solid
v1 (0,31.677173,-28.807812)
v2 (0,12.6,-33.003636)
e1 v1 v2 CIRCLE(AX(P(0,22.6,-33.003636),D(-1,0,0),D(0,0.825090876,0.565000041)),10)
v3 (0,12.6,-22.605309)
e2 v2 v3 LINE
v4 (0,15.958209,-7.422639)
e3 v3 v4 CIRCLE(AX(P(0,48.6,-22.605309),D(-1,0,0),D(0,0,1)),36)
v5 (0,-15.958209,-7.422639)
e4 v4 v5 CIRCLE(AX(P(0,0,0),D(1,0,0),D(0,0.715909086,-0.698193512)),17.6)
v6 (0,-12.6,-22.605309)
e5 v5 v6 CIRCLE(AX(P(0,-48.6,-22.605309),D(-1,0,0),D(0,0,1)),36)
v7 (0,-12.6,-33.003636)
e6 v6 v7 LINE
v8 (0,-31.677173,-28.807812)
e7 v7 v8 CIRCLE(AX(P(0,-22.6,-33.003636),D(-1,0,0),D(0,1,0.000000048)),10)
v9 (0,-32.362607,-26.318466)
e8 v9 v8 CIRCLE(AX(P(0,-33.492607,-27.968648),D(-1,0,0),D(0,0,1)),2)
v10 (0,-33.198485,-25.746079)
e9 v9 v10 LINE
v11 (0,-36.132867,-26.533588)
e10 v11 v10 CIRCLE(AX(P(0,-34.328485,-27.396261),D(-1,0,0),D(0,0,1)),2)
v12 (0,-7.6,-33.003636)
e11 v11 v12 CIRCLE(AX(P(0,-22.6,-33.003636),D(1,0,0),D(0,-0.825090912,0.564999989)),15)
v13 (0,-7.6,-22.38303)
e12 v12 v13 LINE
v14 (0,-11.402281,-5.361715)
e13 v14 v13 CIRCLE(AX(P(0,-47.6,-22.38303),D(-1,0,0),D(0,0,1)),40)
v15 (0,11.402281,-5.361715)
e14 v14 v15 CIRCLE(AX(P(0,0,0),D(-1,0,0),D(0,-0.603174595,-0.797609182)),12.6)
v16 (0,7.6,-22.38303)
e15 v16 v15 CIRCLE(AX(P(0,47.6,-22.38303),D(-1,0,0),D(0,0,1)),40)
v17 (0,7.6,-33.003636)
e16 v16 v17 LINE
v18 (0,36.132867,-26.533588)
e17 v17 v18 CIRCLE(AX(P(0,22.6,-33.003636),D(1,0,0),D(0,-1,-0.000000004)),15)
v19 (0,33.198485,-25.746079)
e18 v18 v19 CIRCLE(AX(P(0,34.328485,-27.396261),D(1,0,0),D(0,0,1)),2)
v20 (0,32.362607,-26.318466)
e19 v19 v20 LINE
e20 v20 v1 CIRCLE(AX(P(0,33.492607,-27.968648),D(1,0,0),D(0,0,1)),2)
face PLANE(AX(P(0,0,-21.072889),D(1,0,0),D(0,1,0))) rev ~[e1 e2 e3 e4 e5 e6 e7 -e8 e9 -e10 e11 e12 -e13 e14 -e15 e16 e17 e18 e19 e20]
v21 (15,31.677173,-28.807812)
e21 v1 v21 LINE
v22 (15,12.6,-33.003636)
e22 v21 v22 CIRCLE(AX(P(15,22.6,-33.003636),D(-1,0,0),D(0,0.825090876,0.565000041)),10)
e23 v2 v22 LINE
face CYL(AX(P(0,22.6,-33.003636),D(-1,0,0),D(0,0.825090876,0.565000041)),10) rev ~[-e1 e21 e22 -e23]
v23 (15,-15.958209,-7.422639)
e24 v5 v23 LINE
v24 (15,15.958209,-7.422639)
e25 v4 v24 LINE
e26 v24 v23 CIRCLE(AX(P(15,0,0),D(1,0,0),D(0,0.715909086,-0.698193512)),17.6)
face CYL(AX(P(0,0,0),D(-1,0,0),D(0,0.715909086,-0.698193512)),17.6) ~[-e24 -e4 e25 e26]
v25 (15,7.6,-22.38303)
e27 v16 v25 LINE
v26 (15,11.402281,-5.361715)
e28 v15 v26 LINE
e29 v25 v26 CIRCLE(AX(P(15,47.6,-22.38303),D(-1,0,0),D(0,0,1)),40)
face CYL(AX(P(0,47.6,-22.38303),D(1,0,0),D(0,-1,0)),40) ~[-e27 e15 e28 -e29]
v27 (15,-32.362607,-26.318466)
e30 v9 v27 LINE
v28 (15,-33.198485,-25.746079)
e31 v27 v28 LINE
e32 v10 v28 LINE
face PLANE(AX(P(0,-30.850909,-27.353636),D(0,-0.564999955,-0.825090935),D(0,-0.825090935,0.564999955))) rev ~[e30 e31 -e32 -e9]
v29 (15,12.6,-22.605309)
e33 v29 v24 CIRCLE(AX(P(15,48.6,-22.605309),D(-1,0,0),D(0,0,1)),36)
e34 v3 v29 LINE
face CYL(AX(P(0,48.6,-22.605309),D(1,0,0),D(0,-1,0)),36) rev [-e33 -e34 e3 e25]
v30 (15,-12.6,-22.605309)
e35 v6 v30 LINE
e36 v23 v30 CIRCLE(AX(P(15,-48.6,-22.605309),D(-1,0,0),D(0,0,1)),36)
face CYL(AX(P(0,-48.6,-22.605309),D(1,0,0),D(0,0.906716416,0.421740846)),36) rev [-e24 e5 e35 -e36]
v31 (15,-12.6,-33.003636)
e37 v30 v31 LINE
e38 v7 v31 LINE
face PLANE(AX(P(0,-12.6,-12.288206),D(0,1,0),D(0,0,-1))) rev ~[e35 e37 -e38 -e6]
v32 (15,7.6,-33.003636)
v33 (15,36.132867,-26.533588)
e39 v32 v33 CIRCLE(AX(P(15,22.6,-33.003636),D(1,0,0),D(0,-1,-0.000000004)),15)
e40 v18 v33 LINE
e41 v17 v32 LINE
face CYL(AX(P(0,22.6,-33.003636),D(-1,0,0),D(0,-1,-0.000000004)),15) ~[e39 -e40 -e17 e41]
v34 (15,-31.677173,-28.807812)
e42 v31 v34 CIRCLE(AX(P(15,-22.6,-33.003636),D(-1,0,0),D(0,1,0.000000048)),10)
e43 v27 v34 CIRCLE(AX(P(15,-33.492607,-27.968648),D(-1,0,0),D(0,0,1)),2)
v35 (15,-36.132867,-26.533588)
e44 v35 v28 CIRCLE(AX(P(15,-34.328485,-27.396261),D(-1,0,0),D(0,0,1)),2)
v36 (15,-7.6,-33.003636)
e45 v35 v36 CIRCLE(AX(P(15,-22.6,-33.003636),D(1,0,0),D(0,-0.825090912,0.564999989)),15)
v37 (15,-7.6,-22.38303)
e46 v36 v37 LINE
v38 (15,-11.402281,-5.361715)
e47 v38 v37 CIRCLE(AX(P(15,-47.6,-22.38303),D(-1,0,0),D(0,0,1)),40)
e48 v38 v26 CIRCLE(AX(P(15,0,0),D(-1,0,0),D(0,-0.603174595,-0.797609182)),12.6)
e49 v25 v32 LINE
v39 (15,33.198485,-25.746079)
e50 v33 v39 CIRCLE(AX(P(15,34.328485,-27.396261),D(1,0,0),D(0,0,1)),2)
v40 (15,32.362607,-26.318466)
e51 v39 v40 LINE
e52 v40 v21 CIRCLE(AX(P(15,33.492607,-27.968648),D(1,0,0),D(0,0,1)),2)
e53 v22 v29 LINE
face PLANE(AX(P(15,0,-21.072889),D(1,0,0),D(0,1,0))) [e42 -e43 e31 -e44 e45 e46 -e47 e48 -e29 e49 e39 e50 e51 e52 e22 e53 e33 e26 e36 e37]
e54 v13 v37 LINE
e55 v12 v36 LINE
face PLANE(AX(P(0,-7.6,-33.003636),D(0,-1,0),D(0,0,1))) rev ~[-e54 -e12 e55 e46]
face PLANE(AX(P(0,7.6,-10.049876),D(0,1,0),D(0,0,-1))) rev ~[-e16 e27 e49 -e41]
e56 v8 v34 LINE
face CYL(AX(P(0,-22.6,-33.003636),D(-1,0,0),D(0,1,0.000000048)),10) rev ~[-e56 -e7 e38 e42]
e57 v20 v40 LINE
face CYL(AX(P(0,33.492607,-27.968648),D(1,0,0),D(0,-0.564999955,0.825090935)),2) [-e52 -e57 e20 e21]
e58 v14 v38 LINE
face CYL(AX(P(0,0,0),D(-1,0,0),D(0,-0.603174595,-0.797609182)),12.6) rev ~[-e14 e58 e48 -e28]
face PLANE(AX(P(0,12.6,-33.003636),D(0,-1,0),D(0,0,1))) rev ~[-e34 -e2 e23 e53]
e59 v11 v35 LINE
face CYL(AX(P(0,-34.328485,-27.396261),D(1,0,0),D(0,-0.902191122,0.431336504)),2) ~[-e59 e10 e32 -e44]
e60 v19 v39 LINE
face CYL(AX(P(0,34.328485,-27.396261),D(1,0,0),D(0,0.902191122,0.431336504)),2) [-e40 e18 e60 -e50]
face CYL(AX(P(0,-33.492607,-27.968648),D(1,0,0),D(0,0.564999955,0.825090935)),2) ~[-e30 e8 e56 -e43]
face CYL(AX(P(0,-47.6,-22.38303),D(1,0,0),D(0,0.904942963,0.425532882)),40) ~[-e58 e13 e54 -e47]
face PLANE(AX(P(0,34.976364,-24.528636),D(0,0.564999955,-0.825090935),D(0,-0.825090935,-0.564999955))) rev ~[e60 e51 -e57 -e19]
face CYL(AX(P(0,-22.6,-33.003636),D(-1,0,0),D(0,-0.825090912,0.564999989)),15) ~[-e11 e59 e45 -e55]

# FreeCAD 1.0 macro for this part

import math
import FreeCAD as App
import Part
import Sketcher

V = App.Vector


def edges_at(feature, points):
    """Names of the edges that pass closest to the given points."""
    edges = feature.Shape.Edges
    near = lambda p: min(range(len(edges)), key=lambda i: edges[i].distToShape(Part.Vertex(*p))[0])
    return sorted({f"Edge{near(p) + 1}" for p in points})

doc = App.newDocument("Part")
body = doc.addObject("PartDesign::Body", "Body")

# Sketch on YZ plane
sketch1 = doc.addObject("Sketcher::SketchObject", "Sketch")
body.addObject(sketch1)
sketch1.AttachmentSupport = (doc.YZ_Plane, [""])
sketch1.MapMode = "FlatFace"
sketch1.addGeometry([
    Part.ArcOfCircle(Part.Circle(V(0, 0, 0), V(0, 0, 1), 12.6), math.radians(-52.902399), math.radians(232.902399)),  # 0
    Part.LineSegment(V(7.6, -10.049876, 0), V(7.6, -33.003636, 0)),  # 1
    Part.ArcOfCircle(Part.Circle(V(22.6, -33.003636, 0), V(0, 0, 1), 15), math.radians(-180), math.radians(34.402291)),  # 2
    Part.LineSegment(V(34.976364, -24.528636, 0), V(30.850909, -27.353636, 0)),  # 3
    Part.ArcOfCircle(Part.Circle(V(22.6, -33.003636, 0), V(0, 0, 1), 10), math.radians(179.999997), math.radians(394.402294)),  # 4
    Part.LineSegment(V(12.6, -33.003636, 0), V(12.6, -12.288206, 0)),  # 5
    Part.ArcOfCircle(Part.Circle(V(0, 0, 0), V(0, 0, 1), 17.6), math.radians(-44.282248), math.radians(224.282248)),  # 6
    Part.LineSegment(V(-12.6, -12.288206, 0), V(-12.6, -33.003636, 0)),  # 7
    Part.ArcOfCircle(Part.Circle(V(-22.6, -33.003636, 0), V(0, 0, 1), 10), math.radians(145.597706), math.radians(360.000003)),  # 8
    Part.LineSegment(V(-30.850909, -27.353636, 0), V(-34.976364, -24.528636, 0)),  # 9
    Part.ArcOfCircle(Part.Circle(V(-22.6, -33.003636, 0), V(0, 0, 1), 15), math.radians(145.597709), math.radians(360)),  # 10
    Part.LineSegment(V(-7.6, -33.003636, 0), V(-7.6, -10.049876, 0)),  # 11
], False)
sketch1.addConstraint([
    Sketcher.Constraint("Coincident", 0, 1, 1, 1),
    Sketcher.Constraint("Tangent", 1, 2, 2, 1),
    Sketcher.Constraint("Coincident", 2, 2, 3, 1),
    Sketcher.Constraint("Coincident", 3, 2, 4, 2),
    Sketcher.Constraint("Tangent", 4, 1, 5, 1),
    Sketcher.Constraint("Coincident", 5, 2, 6, 1),
    Sketcher.Constraint("Coincident", 6, 2, 7, 1),
    Sketcher.Constraint("Tangent", 7, 2, 8, 2),
    Sketcher.Constraint("Coincident", 8, 1, 9, 1),
    Sketcher.Constraint("Coincident", 9, 2, 10, 1),
    Sketcher.Constraint("Tangent", 10, 2, 11, 1),
    Sketcher.Constraint("Coincident", 11, 2, 0, 2),
    Sketcher.Constraint("Vertical", 1),
    Sketcher.Constraint("Vertical", 5),
    Sketcher.Constraint("Vertical", 7),
    Sketcher.Constraint("Vertical", 11),
    Sketcher.Constraint("Coincident", 0, 3, -1, 1),
    Sketcher.Constraint("Coincident", 6, 3, -1, 1),
    Sketcher.Constraint("Coincident", 4, 3, 2, 3),
    Sketcher.Constraint("Coincident", 10, 3, 8, 3),
    Sketcher.Constraint("Equal", 4, 8),
    Sketcher.Constraint("Equal", 2, 10),
    Sketcher.Constraint("Symmetric", 2, 3, 8, 3, -2),
    Sketcher.Constraint("Horizontal", 3, 2, 8, 1),
    Sketcher.Constraint("Horizontal", 2, 2, 9, 2),
    Sketcher.Constraint("Radius", 2, 15.0),
    Sketcher.Constraint("Radius", 4, 10.0),
    Sketcher.Constraint("Radius", 0, 12.6),
    Sketcher.Constraint("Radius", 6, 17.6),
    Sketcher.Constraint("DistanceX", -1, 1, 2, 3, 22.6),
    Sketcher.Constraint("DistanceY", 2, 3, 3, 2, 5.65),
    Sketcher.Constraint("DistanceY", 2, 3, 2, 2, 8.475),
    Sketcher.Constraint("DistanceY", 1, 2, 1, 1, 22.95376),
])
pad1 = doc.addObject("PartDesign::Pad", "Pad")
body.addObject(pad1)
pad1.Profile = sketch1
pad1.Length = 15
doc.recompute()

fillet = doc.addObject("PartDesign::Fillet", "Fillet")
body.addObject(fillet)
fillet.Base = (pad1, edges_at(pad1, [(7.5, 12.6, -12.288), (7.5, -12.6, -12.288)]))
fillet.Radius = 36
doc.recompute()

fillet2 = doc.addObject("PartDesign::Fillet", "Fillet001")
body.addObject(fillet2)
fillet2.Base = (fillet, edges_at(fillet, [(7.5, 7.6, -10.05), (7.5, -7.6, -10.05)]))
fillet2.Radius = 40
doc.recompute()

fillet3 = doc.addObject("PartDesign::Fillet", "Fillet002")
body.addObject(fillet3)
fillet3.Base = (fillet2, edges_at(fillet2, [
    (7.5, 30.851, -27.354),
    (7.5, 34.976, -24.529),
    (7.5, -30.851, -27.354),
    (7.5, -34.976, -24.529),
]))
fillet3.Radius = 2

doc.recompute()
